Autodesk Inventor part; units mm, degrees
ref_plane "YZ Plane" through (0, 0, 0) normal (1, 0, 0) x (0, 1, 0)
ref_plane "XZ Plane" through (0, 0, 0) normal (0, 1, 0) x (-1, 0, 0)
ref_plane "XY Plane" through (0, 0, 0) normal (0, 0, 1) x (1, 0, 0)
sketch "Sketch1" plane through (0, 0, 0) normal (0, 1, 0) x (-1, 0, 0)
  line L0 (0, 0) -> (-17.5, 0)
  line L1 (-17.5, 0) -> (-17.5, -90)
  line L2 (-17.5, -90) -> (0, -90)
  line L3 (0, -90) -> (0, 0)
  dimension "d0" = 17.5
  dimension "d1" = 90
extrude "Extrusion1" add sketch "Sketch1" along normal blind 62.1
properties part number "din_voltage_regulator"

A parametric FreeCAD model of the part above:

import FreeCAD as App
import Part
import Sketcher
from FreeCAD import Vector

doc = App.newDocument("Part")
body = doc.addObject("PartDesign::Body", "Body")

sketch1 = body.newObject("Sketcher::SketchObject", "Sketch")
sketch1.AttachmentSupport = (doc.getObject("XZ_Plane"), [""])
sketch1.MapMode = "FlatFace"
sketch1.addGeometry([
    Part.LineSegment(Vector(0, -90, 0), Vector(0, 0, 0)),
    Part.LineSegment(Vector(0, 0, 0), Vector(18, 0, 0)),
    Part.LineSegment(Vector(18, 0, 0), Vector(18, -90, 0)),
    Part.LineSegment(Vector(18, -90, 0), Vector(0, -90, 0)),
], False)
sketch1.addConstraint([
    Sketcher.Constraint("Coincident", 0, 2, 1, 1),
    Sketcher.Constraint("Coincident", 1, 2, 2, 1),
    Sketcher.Constraint("Coincident", 2, 2, 3, 1),
    Sketcher.Constraint("Coincident", 3, 2, 0, 1),
    Sketcher.Constraint("Vertical", 0),
    Sketcher.Constraint("Horizontal", 1),
    Sketcher.Constraint("Vertical", 2),
    Sketcher.Constraint("Horizontal", 3),
    Sketcher.Constraint("Coincident", 0, 2, -1, 1),
    Sketcher.Constraint("DistanceY", 0, 1, 0, 2, 90.0),
    Sketcher.Constraint("DistanceX", 1, 1, 1, 2, 17.5),
])
pad1 = body.newObject("PartDesign::Pad", "Pad")
pad1.Profile = sketch1
pad1.Length = 62.1
pad1.Reversed = True

doc.recompute()
